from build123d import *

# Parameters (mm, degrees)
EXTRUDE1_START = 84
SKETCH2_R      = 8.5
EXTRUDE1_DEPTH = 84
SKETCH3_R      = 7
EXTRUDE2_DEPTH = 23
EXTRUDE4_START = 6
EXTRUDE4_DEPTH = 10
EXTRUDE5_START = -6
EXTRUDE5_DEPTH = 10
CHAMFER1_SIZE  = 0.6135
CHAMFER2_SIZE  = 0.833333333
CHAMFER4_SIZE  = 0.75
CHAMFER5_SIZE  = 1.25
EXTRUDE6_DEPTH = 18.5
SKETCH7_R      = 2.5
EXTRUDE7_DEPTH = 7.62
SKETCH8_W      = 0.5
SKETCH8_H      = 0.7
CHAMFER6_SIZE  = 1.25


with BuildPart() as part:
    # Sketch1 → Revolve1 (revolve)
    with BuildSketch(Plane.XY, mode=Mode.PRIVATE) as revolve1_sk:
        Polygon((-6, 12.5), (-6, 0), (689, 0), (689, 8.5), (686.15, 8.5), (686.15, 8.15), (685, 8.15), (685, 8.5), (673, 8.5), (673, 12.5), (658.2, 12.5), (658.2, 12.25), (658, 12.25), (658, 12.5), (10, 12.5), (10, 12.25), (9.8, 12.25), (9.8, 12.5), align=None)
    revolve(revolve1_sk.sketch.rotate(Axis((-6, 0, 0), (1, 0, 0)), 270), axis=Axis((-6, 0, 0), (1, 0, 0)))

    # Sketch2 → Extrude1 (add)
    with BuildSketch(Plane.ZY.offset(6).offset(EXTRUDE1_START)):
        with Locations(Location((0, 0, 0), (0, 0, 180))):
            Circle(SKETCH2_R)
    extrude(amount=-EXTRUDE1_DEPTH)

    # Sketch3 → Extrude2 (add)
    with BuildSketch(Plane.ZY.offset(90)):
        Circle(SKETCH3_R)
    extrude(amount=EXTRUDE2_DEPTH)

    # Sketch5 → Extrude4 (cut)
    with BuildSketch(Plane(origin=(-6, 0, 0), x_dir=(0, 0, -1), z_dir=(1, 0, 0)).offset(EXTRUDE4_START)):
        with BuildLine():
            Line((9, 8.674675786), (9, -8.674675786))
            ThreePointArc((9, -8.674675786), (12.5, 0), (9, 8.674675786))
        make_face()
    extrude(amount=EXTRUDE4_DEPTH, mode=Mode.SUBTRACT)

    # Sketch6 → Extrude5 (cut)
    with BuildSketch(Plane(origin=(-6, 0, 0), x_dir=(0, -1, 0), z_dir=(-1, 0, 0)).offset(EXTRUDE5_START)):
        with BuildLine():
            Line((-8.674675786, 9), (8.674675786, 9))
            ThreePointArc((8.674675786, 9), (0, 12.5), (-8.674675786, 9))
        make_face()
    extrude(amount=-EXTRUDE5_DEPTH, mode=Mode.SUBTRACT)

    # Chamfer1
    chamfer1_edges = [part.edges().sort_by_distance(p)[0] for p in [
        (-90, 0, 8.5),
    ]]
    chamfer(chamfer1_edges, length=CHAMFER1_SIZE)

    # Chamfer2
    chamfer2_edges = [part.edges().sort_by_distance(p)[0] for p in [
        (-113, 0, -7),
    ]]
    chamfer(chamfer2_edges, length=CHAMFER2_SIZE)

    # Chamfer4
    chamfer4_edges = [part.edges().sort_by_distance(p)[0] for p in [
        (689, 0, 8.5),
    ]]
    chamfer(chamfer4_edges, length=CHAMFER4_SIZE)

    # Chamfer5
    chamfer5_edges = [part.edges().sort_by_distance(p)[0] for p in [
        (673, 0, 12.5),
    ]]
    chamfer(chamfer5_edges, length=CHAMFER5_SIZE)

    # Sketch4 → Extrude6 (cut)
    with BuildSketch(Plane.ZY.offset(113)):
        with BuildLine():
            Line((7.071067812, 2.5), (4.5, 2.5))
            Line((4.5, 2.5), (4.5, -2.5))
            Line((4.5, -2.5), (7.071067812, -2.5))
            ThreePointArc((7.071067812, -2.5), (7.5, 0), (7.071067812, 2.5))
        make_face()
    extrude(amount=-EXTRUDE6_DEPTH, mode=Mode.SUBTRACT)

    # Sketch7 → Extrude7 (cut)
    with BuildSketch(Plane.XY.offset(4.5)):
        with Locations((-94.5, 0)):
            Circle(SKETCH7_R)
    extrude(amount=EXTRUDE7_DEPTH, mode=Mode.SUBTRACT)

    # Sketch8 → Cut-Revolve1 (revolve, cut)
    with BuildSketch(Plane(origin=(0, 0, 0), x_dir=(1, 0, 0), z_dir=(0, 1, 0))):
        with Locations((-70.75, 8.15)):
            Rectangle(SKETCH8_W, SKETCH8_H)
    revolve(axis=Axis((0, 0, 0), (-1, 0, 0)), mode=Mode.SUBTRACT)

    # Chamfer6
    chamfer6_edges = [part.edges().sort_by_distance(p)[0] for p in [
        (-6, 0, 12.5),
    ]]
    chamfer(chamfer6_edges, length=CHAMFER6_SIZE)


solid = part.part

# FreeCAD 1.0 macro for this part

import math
import FreeCAD as App
import Part
import Sketcher
from FreeCAD import Vector


def edges_at(feature, points):
    """Names of the edges that pass closest to the given points."""
    edges = feature.Shape.Edges
    near = lambda p: min(range(len(edges)), key=lambda i: edges[i].distToShape(Part.Vertex(*p))[0])
    return sorted({f"Edge{near(p) + 1}" for p in points})

doc = App.newDocument("Part")
body = doc.addObject("PartDesign::Body", "Body")

sketch1 = body.newObject("Sketcher::SketchObject", "Sketch")
sketch1.AttachmentSupport = (doc.getObject("XY_Plane"), [""])
sketch1.MapMode = "FlatFace"
sketch1.addGeometry(Part.LineSegment(Vector(-6, 12.5, 0), Vector(-6, 0, 0)), False)
sketch1.addGeometry(Part.LineSegment(Vector(-6, 0, 0), Vector(689, 0, 0)), False)
sketch1.addGeometry(Part.LineSegment(Vector(689, 0, 0), Vector(689, 8.5, 0)), False)
sketch1.addGeometry(Part.LineSegment(Vector(689, 8.5, 0), Vector(686.15, 8.5, 0)), False)
sketch1.addGeometry(Part.LineSegment(Vector(686.15, 8.5, 0), Vector(686.15, 8.15, 0)), False)
sketch1.addGeometry(Part.LineSegment(Vector(686.15, 8.15, 0), Vector(685, 8.15, 0)), False)
sketch1.addGeometry(Part.LineSegment(Vector(685, 8.15, 0), Vector(685, 8.5, 0)), False)
sketch1.addGeometry(Part.LineSegment(Vector(685, 8.5, 0), Vector(673, 8.5, 0)), False)
sketch1.addGeometry(Part.LineSegment(Vector(673, 8.5, 0), Vector(673, 12.5, 0)), False)
sketch1.addGeometry(Part.LineSegment(Vector(673, 12.5, 0), Vector(658.2, 12.5, 0)), False)
sketch1.addGeometry(Part.LineSegment(Vector(658.2, 12.5, 0), Vector(658.2, 12.25, 0)), False)
sketch1.addGeometry(Part.LineSegment(Vector(658.2, 12.25, 0), Vector(658, 12.25, 0)), False)
sketch1.addGeometry(Part.LineSegment(Vector(658, 12.25, 0), Vector(658, 12.5, 0)), False)
sketch1.addGeometry(Part.LineSegment(Vector(658, 12.5, 0), Vector(10, 12.5, 0)), False)
sketch1.addGeometry(Part.LineSegment(Vector(10, 12.5, 0), Vector(10, 12.25, 0)), False)
sketch1.addGeometry(Part.LineSegment(Vector(10, 12.25, 0), Vector(9.8, 12.25, 0)), False)
sketch1.addGeometry(Part.LineSegment(Vector(9.8, 12.25, 0), Vector(9.8, 12.5, 0)), False)
sketch1.addGeometry(Part.LineSegment(Vector(9.8, 12.5, 0), Vector(-6, 12.5, 0)), False)
sketch1.addConstraint(Sketcher.Constraint("Coincident", 0, 2, 1, 1))
sketch1.addConstraint(Sketcher.Constraint("Coincident", 1, 2, 2, 1))
sketch1.addConstraint(Sketcher.Constraint("Coincident", 2, 2, 3, 1))
sketch1.addConstraint(Sketcher.Constraint("Coincident", 3, 2, 4, 1))
sketch1.addConstraint(Sketcher.Constraint("Coincident", 4, 2, 5, 1))
sketch1.addConstraint(Sketcher.Constraint("Coincident", 5, 2, 6, 1))
sketch1.addConstraint(Sketcher.Constraint("Coincident", 6, 2, 7, 1))
sketch1.addConstraint(Sketcher.Constraint("Coincident", 7, 2, 8, 1))
sketch1.addConstraint(Sketcher.Constraint("Coincident", 8, 2, 9, 1))
sketch1.addConstraint(Sketcher.Constraint("Coincident", 9, 2, 10, 1))
sketch1.addConstraint(Sketcher.Constraint("Coincident", 10, 2, 11, 1))
sketch1.addConstraint(Sketcher.Constraint("Coincident", 11, 2, 12, 1))
sketch1.addConstraint(Sketcher.Constraint("Coincident", 12, 2, 13, 1))
sketch1.addConstraint(Sketcher.Constraint("Coincident", 13, 2, 14, 1))
sketch1.addConstraint(Sketcher.Constraint("Coincident", 14, 2, 15, 1))
sketch1.addConstraint(Sketcher.Constraint("Coincident", 15, 2, 16, 1))
sketch1.addConstraint(Sketcher.Constraint("Coincident", 16, 2, 17, 1))
sketch1.addConstraint(Sketcher.Constraint("Coincident", 17, 2, 0, 1))
sketch1.addConstraint(Sketcher.Constraint("Vertical", 0))
sketch1.addConstraint(Sketcher.Constraint("Horizontal", 1))
sketch1.addConstraint(Sketcher.Constraint("Vertical", 2))
sketch1.addConstraint(Sketcher.Constraint("Horizontal", 3))
sketch1.addConstraint(Sketcher.Constraint("Vertical", 4))
sketch1.addConstraint(Sketcher.Constraint("Horizontal", 5))
sketch1.addConstraint(Sketcher.Constraint("Vertical", 6))
sketch1.addConstraint(Sketcher.Constraint("Horizontal", 7))
sketch1.addConstraint(Sketcher.Constraint("Vertical", 8))
sketch1.addConstraint(Sketcher.Constraint("Horizontal", 9))
sketch1.addConstraint(Sketcher.Constraint("Vertical", 10))
sketch1.addConstraint(Sketcher.Constraint("Horizontal", 11))
sketch1.addConstraint(Sketcher.Constraint("Vertical", 12))
sketch1.addConstraint(Sketcher.Constraint("Horizontal", 13))
sketch1.addConstraint(Sketcher.Constraint("Vertical", 14))
sketch1.addConstraint(Sketcher.Constraint("Horizontal", 15))
sketch1.addConstraint(Sketcher.Constraint("Vertical", 16))
sketch1.addConstraint(Sketcher.Constraint("Horizontal", 17))
sketch1.addConstraint(Sketcher.Constraint("PointOnObject", 0, 2, -1))
sketch1.addConstraint(Sketcher.Constraint("Horizontal", 3, 2, 6, 2))
sketch1.addConstraint(Sketcher.Constraint("Horizontal", 9, 2, 12, 2))
sketch1.addConstraint(Sketcher.Constraint("Horizontal", 11, 2, 14, 2))
sketch1.addConstraint(Sketcher.Constraint("Horizontal", 13, 2, 16, 2))
sketch1.addConstraint(Sketcher.Constraint("Equal", 11, 15))
sketch1.addConstraint(Sketcher.Constraint("DistanceX", 1, 1, 1, 2, 695.0))
sketch1.addConstraint(Sketcher.Constraint("DistanceX", 7, 2, 7, 1, 12.0))
sketch1.addConstraint(Sketcher.Constraint("DistanceX", 13, 2, 13, 1, 648.0))
sketch1.addConstraint(Sketcher.Constraint("DistanceY", 8, 1, 8, 2, 4.0))
sketch1.addConstraint(Sketcher.Constraint("DistanceX", 9, 2, 9, 1, 14.8))
sketch1.addConstraint(Sketcher.Constraint("DistanceX", 11, 2, 11, 1, 0.2))
sketch1.addConstraint(Sketcher.Constraint("DistanceX", 17, 2, 17, 1, 15.8))
sketch1.addConstraint(Sketcher.Constraint("DistanceY", 0, 2, 0, 1, 12.5))
sketch1.addConstraint(Sketcher.Constraint("DistanceX", 0, 2, -1, 1, 6.0))
sketch1.addConstraint(Sketcher.Constraint("DistanceX", 3, 2, 3, 1, 2.85))
sketch1.addConstraint(Sketcher.Constraint("DistanceY", 4, 2, 4, 1, 0.35))
sketch1.addConstraint(Sketcher.Constraint("DistanceY", 10, 2, 10, 1, 0.25))
revolution = body.newObject("PartDesign::Revolution", "Revolution")
revolution.Profile = sketch1
revolution.ReferenceAxis = (sketch1, ["H_Axis"])
revolution.Angle = 360

sketch2 = body.newObject("Sketcher::SketchObject", "Sketch001")
sketch2.AttachmentSupport = (doc.getObject("YZ_Plane"), [""])
sketch2.MapMode = "FlatFace"
sketch2.AttachmentOffset = App.Placement(Vector(0, 0, -90), App.Rotation())
sketch2.addGeometry(Part.Circle(Vector(0, 0, 0), Vector(0, 0, 1), 8), False)
sketch2.addConstraint(Sketcher.Constraint("Coincident", 0, 3, -1, 1))
sketch2.addConstraint(Sketcher.Constraint("Diameter", 0, 17.0))
pad1 = body.newObject("PartDesign::Pad", "Pad")
pad1.Profile = sketch2
pad1.Length = 84

sketch3 = body.newObject("Sketcher::SketchObject", "Sketch002")
sketch3.AttachmentSupport = (doc.getObject("YZ_Plane"), [""])
sketch3.MapMode = "FlatFace"
sketch3.AttachmentOffset = App.Placement(Vector(0, 0, -90), App.Rotation())
sketch3.addGeometry(Part.Circle(Vector(0, 0, 0), Vector(0, 0, 1), 7), False)
sketch3.addConstraint(Sketcher.Constraint("Coincident", 0, 3, -1, 1))
sketch3.addConstraint(Sketcher.Constraint("Diameter", 0, 14.0))
pad2 = body.newObject("PartDesign::Pad", "Pad001")
pad2.Profile = sketch3
pad2.Length = 23
pad2.Reversed = True

sketch4 = body.newObject("Sketcher::SketchObject", "Sketch003")
sketch4.AttachmentSupport = (doc.getObject("YZ_Plane"), [""])
sketch4.MapMode = "FlatFace"
sketch4.addGeometry(Part.LineSegment(Vector(9, -9, 0), Vector(-9, -9, 0)), False)
sketch4.addGeometry(Part.ArcOfCircle(Part.Circle(Vector(0, 0, 0), Vector(0, 0, 1), 12), math.radians(-134), math.radians(-46)), False)
sketch4.addConstraint(Sketcher.Constraint("Coincident", 0, 1, 1, 2))
sketch4.addConstraint(Sketcher.Constraint("Coincident", 1, 1, 0, 2))
sketch4.addConstraint(Sketcher.Constraint("Horizontal", 0))
sketch4.addConstraint(Sketcher.Constraint("Coincident", 1, 3, -1, 1))
sketch4.addConstraint(Sketcher.Constraint("Radius", 1, 12.5))
sketch4.addConstraint(Sketcher.Constraint("DistanceY", 0, 1, -1, 1, 9.0))
pocket1 = body.newObject("PartDesign::Pocket", "Pocket")
pocket1.Profile = sketch4
pocket1.Length = 10
pocket1.Reversed = True

sketch5 = body.newObject("Sketcher::SketchObject", "Sketch004")
sketch5.AttachmentSupport = (doc.getObject("YZ_Plane"), [""])
sketch5.MapMode = "FlatFace"
sketch5.addGeometry(Part.LineSegment(Vector(9, 9, 0), Vector(-9, 9, 0)), False)
sketch5.addGeometry(Part.ArcOfCircle(Part.Circle(Vector(0, 0, 0), Vector(0, 0, 1), 12), math.radians(46), math.radians(134)), False)
sketch5.addConstraint(Sketcher.Constraint("Coincident", 0, 1, 1, 1))
sketch5.addConstraint(Sketcher.Constraint("Coincident", 1, 2, 0, 2))
sketch5.addConstraint(Sketcher.Constraint("Horizontal", 0))
sketch5.addConstraint(Sketcher.Constraint("Coincident", 1, 3, -1, 1))
sketch5.addConstraint(Sketcher.Constraint("Radius", 1, 12.5))
sketch5.addConstraint(Sketcher.Constraint("DistanceY", -1, 1, 0, 1, 9.0))
pocket2 = body.newObject("PartDesign::Pocket", "Pocket001")
pocket2.Profile = sketch5
pocket2.Length = 10
pocket2.Reversed = True
doc.recompute()

chamfer = body.newObject("PartDesign::Chamfer", "Chamfer")
chamfer.Base = (pocket2, edges_at(pocket2, [(-90, 0, 8.5)]))
chamfer.Size = 0.6135
doc.recompute()

chamfer2 = body.newObject("PartDesign::Chamfer", "Chamfer001")
chamfer2.Base = (chamfer, edges_at(chamfer, [(-113, 0, -7)]))
chamfer2.Size = 0.833333
doc.recompute()

chamfer3 = body.newObject("PartDesign::Chamfer", "Chamfer002")
chamfer3.Base = (chamfer2, edges_at(chamfer2, [(689, 0, 8.5)]))
chamfer3.Size = 0.75
doc.recompute()

chamfer4 = body.newObject("PartDesign::Chamfer", "Chamfer003")
chamfer4.Base = (chamfer3, edges_at(chamfer3, [(673, 0, 12.5)]))
chamfer4.Size = 1.25

sketch6 = body.newObject("Sketcher::SketchObject", "Sketch005")
sketch6.AttachmentSupport = (doc.getObject("YZ_Plane"), [""])
sketch6.MapMode = "FlatFace"
sketch6.AttachmentOffset = App.Placement(Vector(0, 0, -113), App.Rotation())
sketch6.addGeometry(Part.LineSegment(Vector(2.5, 7.1, 0), Vector(2.5, 4.5, 0)), False)
sketch6.addGeometry(Part.LineSegment(Vector(2.5, 4.5, 0), Vector(-2.5, 4.5, 0)), False)
sketch6.addGeometry(Part.LineSegment(Vector(-2.5, 4.5, 0), Vector(-2.5, 7.1, 0)), False)
sketch6.addGeometry(Part.ArcOfCircle(Part.Circle(Vector(0, 0, 0), Vector(0, 0, 1), 7.5), math.radians(71), math.radians(109)), False)
sketch6.addConstraint(Sketcher.Constraint("Coincident", 0, 2, 1, 1))
sketch6.addConstraint(Sketcher.Constraint("Coincident", 1, 2, 2, 1))
sketch6.addConstraint(Sketcher.Constraint("Coincident", 2, 2, 3, 2))
sketch6.addConstraint(Sketcher.Constraint("Coincident", 3, 1, 0, 1))
sketch6.addConstraint(Sketcher.Constraint("Vertical", 0))
sketch6.addConstraint(Sketcher.Constraint("Horizontal", 1))
sketch6.addConstraint(Sketcher.Constraint("Vertical", 2))
sketch6.addConstraint(Sketcher.Constraint("Coincident", 3, 3, -1, 1))
sketch6.addConstraint(Sketcher.Constraint("Horizontal", 2, 2, 3, 1))
sketch6.addConstraint(Sketcher.Constraint("Radius", 3, 7.5))
sketch6.addConstraint(Sketcher.Constraint("DistanceX", 1, 2, 1, 1, 5.0))
sketch6.addConstraint(Sketcher.Constraint("DistanceY", -1, 1, 0, 2, 4.5))
pocket3 = body.newObject("PartDesign::Pocket", "Pocket002")
pocket3.Profile = sketch6
pocket3.Length = 18.5
pocket3.Reversed = True

sketch7 = body.newObject("Sketcher::SketchObject", "Sketch006")
sketch7.AttachmentSupport = (doc.getObject("XY_Plane"), [""])
sketch7.MapMode = "FlatFace"
sketch7.AttachmentOffset = App.Placement(Vector(0, 0, 4.5), App.Rotation())
sketch7.addGeometry(Part.Circle(Vector(-94.5, 0, 0), Vector(0, 0, 1), 2.5), False)
sketch7.addConstraint(Sketcher.Constraint("PointOnObject", 0, 3, -1))
sketch7.addConstraint(Sketcher.Constraint("Diameter", 0, 5.0))
sketch7.addConstraint(Sketcher.Constraint("DistanceX", 0, 3, -1, 1, 94.5))
pocket4 = body.newObject("PartDesign::Pocket", "Pocket003")
pocket4.Profile = sketch7
pocket4.Length = 7.62
pocket4.Reversed = True

sketch8 = body.newObject("Sketcher::SketchObject", "Sketch007")
sketch8.AttachmentSupport = (doc.getObject("XZ_Plane"), [""])
sketch8.MapMode = "FlatFace"
sketch8.addGeometry(Part.LineSegment(Vector(-71, -8.5, 0), Vector(-71, -7.8, 0)), False)
sketch8.addGeometry(Part.LineSegment(Vector(-71, -7.8, 0), Vector(-70.5, -7.8, 0)), False)
sketch8.addGeometry(Part.LineSegment(Vector(-70.5, -7.8, 0), Vector(-70.5, -8.5, 0)), False)
sketch8.addGeometry(Part.LineSegment(Vector(-70.5, -8.5, 0), Vector(-71, -8.5, 0)), False)
sketch8.addConstraint(Sketcher.Constraint("Coincident", 0, 2, 1, 1))
sketch8.addConstraint(Sketcher.Constraint("Coincident", 1, 2, 2, 1))
sketch8.addConstraint(Sketcher.Constraint("Coincident", 2, 2, 3, 1))
sketch8.addConstraint(Sketcher.Constraint("Coincident", 3, 2, 0, 1))
sketch8.addConstraint(Sketcher.Constraint("Vertical", 0))
sketch8.addConstraint(Sketcher.Constraint("Horizontal", 1))
sketch8.addConstraint(Sketcher.Constraint("Vertical", 2))
sketch8.addConstraint(Sketcher.Constraint("Horizontal", 3))
sketch8.addConstraint(Sketcher.Constraint("DistanceX", 1, 1, 1, 2, 0.5))
sketch8.addConstraint(Sketcher.Constraint("DistanceY", 0, 1, 0, 2, 0.7))
sketch8.addConstraint(Sketcher.Constraint("DistanceX", 0, 2, -1, 1, 71.0))
sketch8.addConstraint(Sketcher.Constraint("DistanceY", 0, 2, -1, 1, 7.8))
groove = body.newObject("PartDesign::Groove", "Groove")
groove.Profile = sketch8
groove.ReferenceAxis = (sketch8, ["H_Axis"])
groove.Angle = 360
doc.recompute()

chamfer5 = body.newObject("PartDesign::Chamfer", "Chamfer004")
chamfer5.Base = (groove, edges_at(groove, [(-6, 0, 12.5)]))
chamfer5.Size = 1.25

doc.recompute()
